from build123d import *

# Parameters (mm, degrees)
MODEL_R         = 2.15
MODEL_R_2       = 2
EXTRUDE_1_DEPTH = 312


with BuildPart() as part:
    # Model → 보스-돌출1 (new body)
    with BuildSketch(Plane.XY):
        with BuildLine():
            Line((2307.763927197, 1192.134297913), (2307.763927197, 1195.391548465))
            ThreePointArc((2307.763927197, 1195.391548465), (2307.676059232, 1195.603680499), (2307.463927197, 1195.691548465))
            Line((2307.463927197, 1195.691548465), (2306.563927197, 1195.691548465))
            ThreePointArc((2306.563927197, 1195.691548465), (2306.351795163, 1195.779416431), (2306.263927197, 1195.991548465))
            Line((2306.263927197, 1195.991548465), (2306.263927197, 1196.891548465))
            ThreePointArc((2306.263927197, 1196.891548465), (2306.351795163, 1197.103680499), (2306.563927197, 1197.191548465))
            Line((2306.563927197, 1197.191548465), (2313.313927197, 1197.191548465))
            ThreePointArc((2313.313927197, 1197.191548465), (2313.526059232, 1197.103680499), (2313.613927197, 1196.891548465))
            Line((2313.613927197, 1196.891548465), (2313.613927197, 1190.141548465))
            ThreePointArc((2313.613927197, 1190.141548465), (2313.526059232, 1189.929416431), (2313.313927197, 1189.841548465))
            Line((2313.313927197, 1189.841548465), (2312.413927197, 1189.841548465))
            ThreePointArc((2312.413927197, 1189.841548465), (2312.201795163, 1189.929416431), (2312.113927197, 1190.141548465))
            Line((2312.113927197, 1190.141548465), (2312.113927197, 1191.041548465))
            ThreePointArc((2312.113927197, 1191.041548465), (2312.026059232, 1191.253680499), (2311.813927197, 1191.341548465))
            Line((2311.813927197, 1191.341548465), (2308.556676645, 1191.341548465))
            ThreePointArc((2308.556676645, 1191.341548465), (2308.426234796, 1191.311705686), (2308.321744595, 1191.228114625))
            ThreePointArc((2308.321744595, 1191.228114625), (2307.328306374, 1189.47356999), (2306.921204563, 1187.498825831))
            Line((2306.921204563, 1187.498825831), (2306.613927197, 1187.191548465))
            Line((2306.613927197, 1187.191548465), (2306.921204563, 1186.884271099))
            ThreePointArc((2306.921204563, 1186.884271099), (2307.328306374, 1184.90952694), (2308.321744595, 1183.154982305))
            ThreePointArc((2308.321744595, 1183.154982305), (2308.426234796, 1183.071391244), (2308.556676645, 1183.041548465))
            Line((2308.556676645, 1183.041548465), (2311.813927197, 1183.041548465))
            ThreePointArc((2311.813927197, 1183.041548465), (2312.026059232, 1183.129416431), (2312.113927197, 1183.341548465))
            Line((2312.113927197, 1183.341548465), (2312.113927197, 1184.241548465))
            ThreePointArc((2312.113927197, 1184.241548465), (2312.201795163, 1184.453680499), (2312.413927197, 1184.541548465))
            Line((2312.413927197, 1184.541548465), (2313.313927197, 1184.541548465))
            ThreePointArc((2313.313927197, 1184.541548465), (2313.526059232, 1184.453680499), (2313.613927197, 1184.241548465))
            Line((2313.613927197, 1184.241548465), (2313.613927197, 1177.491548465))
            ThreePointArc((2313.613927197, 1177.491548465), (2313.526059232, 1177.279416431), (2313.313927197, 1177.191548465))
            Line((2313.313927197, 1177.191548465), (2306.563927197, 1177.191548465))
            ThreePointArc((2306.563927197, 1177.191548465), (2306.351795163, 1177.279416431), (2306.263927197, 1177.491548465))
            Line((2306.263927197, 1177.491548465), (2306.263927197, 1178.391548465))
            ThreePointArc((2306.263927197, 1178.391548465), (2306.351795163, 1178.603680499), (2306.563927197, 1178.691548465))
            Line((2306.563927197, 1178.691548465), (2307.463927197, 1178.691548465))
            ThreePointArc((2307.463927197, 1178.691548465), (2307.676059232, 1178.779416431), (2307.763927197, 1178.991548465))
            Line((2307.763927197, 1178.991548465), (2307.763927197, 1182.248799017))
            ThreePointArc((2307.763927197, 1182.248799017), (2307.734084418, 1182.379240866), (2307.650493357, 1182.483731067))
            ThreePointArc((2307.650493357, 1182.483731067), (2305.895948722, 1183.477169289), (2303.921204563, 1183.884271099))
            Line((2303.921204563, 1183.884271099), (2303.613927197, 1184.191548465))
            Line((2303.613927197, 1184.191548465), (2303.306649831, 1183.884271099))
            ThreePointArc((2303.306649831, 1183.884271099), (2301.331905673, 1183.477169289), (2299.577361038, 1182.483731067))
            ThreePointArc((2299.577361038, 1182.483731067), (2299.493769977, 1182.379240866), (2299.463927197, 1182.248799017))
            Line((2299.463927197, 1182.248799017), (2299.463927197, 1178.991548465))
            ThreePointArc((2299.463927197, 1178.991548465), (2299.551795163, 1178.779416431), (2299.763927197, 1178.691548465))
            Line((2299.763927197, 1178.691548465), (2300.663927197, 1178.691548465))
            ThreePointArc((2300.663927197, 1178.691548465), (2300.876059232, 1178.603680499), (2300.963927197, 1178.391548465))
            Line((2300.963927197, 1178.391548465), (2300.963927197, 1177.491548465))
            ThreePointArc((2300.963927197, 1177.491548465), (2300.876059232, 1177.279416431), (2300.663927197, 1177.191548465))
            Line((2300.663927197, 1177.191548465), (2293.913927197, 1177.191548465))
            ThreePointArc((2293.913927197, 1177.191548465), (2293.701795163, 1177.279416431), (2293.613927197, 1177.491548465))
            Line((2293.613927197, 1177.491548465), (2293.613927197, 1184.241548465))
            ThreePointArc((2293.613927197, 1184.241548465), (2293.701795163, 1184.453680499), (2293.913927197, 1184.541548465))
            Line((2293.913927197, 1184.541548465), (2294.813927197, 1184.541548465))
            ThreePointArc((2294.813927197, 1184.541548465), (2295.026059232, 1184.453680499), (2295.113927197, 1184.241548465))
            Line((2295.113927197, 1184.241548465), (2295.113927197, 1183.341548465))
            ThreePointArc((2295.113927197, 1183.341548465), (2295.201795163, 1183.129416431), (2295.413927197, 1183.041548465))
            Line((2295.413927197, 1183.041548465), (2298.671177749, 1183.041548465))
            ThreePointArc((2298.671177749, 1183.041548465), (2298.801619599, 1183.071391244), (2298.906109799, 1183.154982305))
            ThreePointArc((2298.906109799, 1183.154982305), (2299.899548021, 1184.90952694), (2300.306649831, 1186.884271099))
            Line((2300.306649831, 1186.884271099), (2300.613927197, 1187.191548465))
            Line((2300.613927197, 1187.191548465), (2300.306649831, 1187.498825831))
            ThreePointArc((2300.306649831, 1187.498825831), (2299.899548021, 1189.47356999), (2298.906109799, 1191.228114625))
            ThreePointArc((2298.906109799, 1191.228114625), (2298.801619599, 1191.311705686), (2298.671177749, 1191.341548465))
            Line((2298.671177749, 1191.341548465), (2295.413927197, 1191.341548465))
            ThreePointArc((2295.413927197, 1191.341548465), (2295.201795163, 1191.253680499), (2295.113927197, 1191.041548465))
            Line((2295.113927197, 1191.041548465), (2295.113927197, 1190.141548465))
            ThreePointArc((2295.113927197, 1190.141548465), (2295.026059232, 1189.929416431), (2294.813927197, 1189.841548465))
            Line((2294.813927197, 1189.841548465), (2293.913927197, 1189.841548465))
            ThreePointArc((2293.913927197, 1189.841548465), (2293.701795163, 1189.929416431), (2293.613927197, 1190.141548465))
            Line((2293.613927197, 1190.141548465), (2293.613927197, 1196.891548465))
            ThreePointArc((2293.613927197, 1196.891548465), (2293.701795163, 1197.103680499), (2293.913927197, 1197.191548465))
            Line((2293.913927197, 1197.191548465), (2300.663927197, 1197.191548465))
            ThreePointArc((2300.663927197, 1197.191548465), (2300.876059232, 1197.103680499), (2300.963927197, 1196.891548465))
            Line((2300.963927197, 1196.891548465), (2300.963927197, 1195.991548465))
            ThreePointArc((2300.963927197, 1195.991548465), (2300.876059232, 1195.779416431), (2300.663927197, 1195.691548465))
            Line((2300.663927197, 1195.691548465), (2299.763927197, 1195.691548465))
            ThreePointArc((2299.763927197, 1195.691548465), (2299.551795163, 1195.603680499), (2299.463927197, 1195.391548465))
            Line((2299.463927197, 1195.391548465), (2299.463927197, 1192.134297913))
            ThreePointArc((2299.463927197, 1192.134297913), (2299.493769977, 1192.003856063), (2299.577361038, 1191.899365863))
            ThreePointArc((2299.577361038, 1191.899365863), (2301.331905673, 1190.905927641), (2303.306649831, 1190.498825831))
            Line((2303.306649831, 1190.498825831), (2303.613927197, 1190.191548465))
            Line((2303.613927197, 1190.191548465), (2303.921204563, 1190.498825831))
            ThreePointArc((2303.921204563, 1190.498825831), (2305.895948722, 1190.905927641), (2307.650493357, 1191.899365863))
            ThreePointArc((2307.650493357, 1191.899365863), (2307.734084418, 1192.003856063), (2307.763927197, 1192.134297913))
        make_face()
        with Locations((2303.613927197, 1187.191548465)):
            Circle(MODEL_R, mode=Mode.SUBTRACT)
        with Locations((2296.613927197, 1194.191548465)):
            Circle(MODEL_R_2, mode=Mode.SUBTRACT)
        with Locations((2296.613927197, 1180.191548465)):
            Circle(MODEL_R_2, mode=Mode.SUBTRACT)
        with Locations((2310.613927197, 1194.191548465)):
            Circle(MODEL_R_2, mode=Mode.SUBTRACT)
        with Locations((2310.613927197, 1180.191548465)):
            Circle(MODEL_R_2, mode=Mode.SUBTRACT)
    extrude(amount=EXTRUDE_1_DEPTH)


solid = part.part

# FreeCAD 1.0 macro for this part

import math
import FreeCAD as App
import Part
import Sketcher
from FreeCAD import Vector
Q = App.Units.Quantity

doc = App.newDocument("Part")
body = doc.addObject("PartDesign::Body", "Body")

# Sketch on XY plane
sketch1 = body.newObject("Sketcher::SketchObject", "Sketch")
sketch1.AttachmentSupport = (doc.getObject("XY_Plane"), [""])
sketch1.MapMode = "FlatFace"
sketch1.addGeometry(Part.LineSegment(Vector(2307.763927, 1195.391548, 0), Vector(2307.763927, 1192.134298, 0)), False)
sketch1.addGeometry(Part.ArcOfCircle(Part.Circle(Vector(2307.463927, 1192.134298, 0), Vector(0, 0, 1), 0.3), math.radians(-51.545921), math.radians(0)), False)
sketch1.addGeometry(Part.ArcOfCircle(Part.Circle(Vector(2303.613927, 1196.982382, 0), Vector(0, 0, 1), 6.490833), math.radians(-87.286592), math.radians(-51.545921)), False)
sketch1.addGeometry(Part.LineSegment(Vector(2303.921205, 1190.498826, 0), Vector(2303.613927, 1190.191548, 0)), False)
sketch1.addGeometry(Part.LineSegment(Vector(2303.613927, 1190.191548, 0), Vector(2303.30665, 1190.498826, 0)), False)
sketch1.addGeometry(Part.ArcOfCircle(Part.Circle(Vector(2303.613927, 1196.982382, 0), Vector(0, 0, 1), 6.490833), math.radians(-128.454079), math.radians(-92.713408)), False)
sketch1.addGeometry(Part.ArcOfCircle(Part.Circle(Vector(2299.763927, 1192.134298, 0), Vector(0, 0, 1), 0.3), math.radians(-180), math.radians(-128.454079)), False)
sketch1.addGeometry(Part.LineSegment(Vector(2299.463927, 1192.134298, 0), Vector(2299.463927, 1195.391548, 0)), False)
sketch1.addGeometry(Part.ArcOfCircle(Part.Circle(Vector(2299.763927, 1195.391548, 0), Vector(0, 0, 1), 0.3), math.radians(90), math.radians(180)), False)
sketch1.addGeometry(Part.LineSegment(Vector(2299.763927, 1195.691548, 0), Vector(2300.663927, 1195.691548, 0)), False)
sketch1.addGeometry(Part.ArcOfCircle(Part.Circle(Vector(2300.663927, 1195.991548, 0), Vector(0, 0, 1), 0.3), math.radians(-90), math.radians(0)), False)
sketch1.addGeometry(Part.LineSegment(Vector(2300.963927, 1195.991548, 0), Vector(2300.963927, 1196.891548, 0)), False)
sketch1.addGeometry(Part.ArcOfCircle(Part.Circle(Vector(2300.663927, 1196.891548, 0), Vector(0, 0, 1), 0.3), math.radians(0), math.radians(90)), False)
sketch1.addGeometry(Part.LineSegment(Vector(2300.663927, 1197.191548, 0), Vector(2293.913927, 1197.191548, 0)), False)
sketch1.addGeometry(Part.ArcOfCircle(Part.Circle(Vector(2293.913927, 1196.891548, 0), Vector(0, 0, 1), 0.3), math.radians(90), math.radians(180)), False)
sketch1.addGeometry(Part.LineSegment(Vector(2293.613927, 1196.891548, 0), Vector(2293.613927, 1190.141548, 0)), False)
sketch1.addGeometry(Part.ArcOfCircle(Part.Circle(Vector(2293.913927, 1190.141548, 0), Vector(0, 0, 1), 0.3), math.radians(-180), math.radians(-90)), False)
sketch1.addGeometry(Part.LineSegment(Vector(2293.913927, 1189.841548, 0), Vector(2294.813927, 1189.841548, 0)), False)
sketch1.addGeometry(Part.ArcOfCircle(Part.Circle(Vector(2294.813927, 1190.141548, 0), Vector(0, 0, 1), 0.3), math.radians(-90), math.radians(0)), False)
sketch1.addGeometry(Part.LineSegment(Vector(2295.113927, 1190.141548, 0), Vector(2295.113927, 1191.041548, 0)), False)
sketch1.addGeometry(Part.ArcOfCircle(Part.Circle(Vector(2295.413927, 1191.041548, 0), Vector(0, 0, 1), 0.3), math.radians(90), math.radians(180)), False)
sketch1.addGeometry(Part.LineSegment(Vector(2295.413927, 1191.341548, 0), Vector(2298.671178, 1191.341548, 0)), False)
sketch1.addGeometry(Part.ArcOfCircle(Part.Circle(Vector(2298.671178, 1191.041548, 0), Vector(0, 0, 1), 0.3), math.radians(38.454079), math.radians(90)), False)
sketch1.addGeometry(Part.ArcOfCircle(Part.Circle(Vector(2293.823094, 1187.191548, 0), Vector(0, 0, 1), 6.490833), math.radians(2.713408), math.radians(38.454079)), False)
sketch1.addGeometry(Part.LineSegment(Vector(2300.30665, 1187.498826, 0), Vector(2300.613927, 1187.191548, 0)), False)
sketch1.addGeometry(Part.LineSegment(Vector(2300.613927, 1187.191548, 0), Vector(2300.30665, 1186.884271, 0)), False)
sketch1.addGeometry(Part.ArcOfCircle(Part.Circle(Vector(2293.823094, 1187.191548, 0), Vector(0, 0, 1), 6.490833), math.radians(-38.454079), math.radians(-2.713408)), False)
sketch1.addGeometry(Part.ArcOfCircle(Part.Circle(Vector(2298.671178, 1183.341548, 0), Vector(0, 0, 1), 0.3), math.radians(-90), math.radians(-38.454079)), False)
sketch1.addGeometry(Part.LineSegment(Vector(2298.671178, 1183.041548, 0), Vector(2295.413927, 1183.041548, 0)), False)
sketch1.addGeometry(Part.ArcOfCircle(Part.Circle(Vector(2295.413927, 1183.341548, 0), Vector(0, 0, 1), 0.3), math.radians(-180), math.radians(-90)), False)
sketch1.addGeometry(Part.LineSegment(Vector(2295.113927, 1183.341548, 0), Vector(2295.113927, 1184.241548, 0)), False)
sketch1.addGeometry(Part.ArcOfCircle(Part.Circle(Vector(2294.813927, 1184.241548, 0), Vector(0, 0, 1), 0.3), math.radians(0), math.radians(90)), False)
sketch1.addGeometry(Part.LineSegment(Vector(2294.813927, 1184.541548, 0), Vector(2293.913927, 1184.541548, 0)), False)
sketch1.addGeometry(Part.ArcOfCircle(Part.Circle(Vector(2293.913927, 1184.241548, 0), Vector(0, 0, 1), 0.3), math.radians(90), math.radians(180)), False)
sketch1.addGeometry(Part.LineSegment(Vector(2293.613927, 1184.241548, 0), Vector(2293.613927, 1177.491548, 0)), False)
sketch1.addGeometry(Part.ArcOfCircle(Part.Circle(Vector(2293.913927, 1177.491548, 0), Vector(0, 0, 1), 0.3), math.radians(-180), math.radians(-90)), False)
sketch1.addGeometry(Part.LineSegment(Vector(2293.913927, 1177.191548, 0), Vector(2300.663927, 1177.191548, 0)), False)
sketch1.addGeometry(Part.ArcOfCircle(Part.Circle(Vector(2300.663927, 1177.491548, 0), Vector(0, 0, 1), 0.3), math.radians(-90), math.radians(0)), False)
sketch1.addGeometry(Part.LineSegment(Vector(2300.963927, 1177.491548, 0), Vector(2300.963927, 1178.391548, 0)), False)
sketch1.addGeometry(Part.ArcOfCircle(Part.Circle(Vector(2300.663927, 1178.391548, 0), Vector(0, 0, 1), 0.3), math.radians(0), math.radians(90)), False)
sketch1.addGeometry(Part.LineSegment(Vector(2300.663927, 1178.691548, 0), Vector(2299.763927, 1178.691548, 0)), False)
sketch1.addGeometry(Part.ArcOfCircle(Part.Circle(Vector(2299.763927, 1178.991548, 0), Vector(0, 0, 1), 0.3), math.radians(-180), math.radians(-90)), False)
sketch1.addGeometry(Part.LineSegment(Vector(2299.463927, 1178.991548, 0), Vector(2299.463927, 1182.248799, 0)), False)
sketch1.addGeometry(Part.ArcOfCircle(Part.Circle(Vector(2299.763927, 1182.248799, 0), Vector(0, 0, 1), 0.3), math.radians(128.45408), math.radians(179.999999)), False)
sketch1.addGeometry(Part.ArcOfCircle(Part.Circle(Vector(2303.613927, 1177.400715, 0), Vector(0, 0, 1), 6.490833), math.radians(92.713408), math.radians(128.454079)), False)
sketch1.addGeometry(Part.LineSegment(Vector(2303.30665, 1183.884271, 0), Vector(2303.613927, 1184.191548, 0)), False)
sketch1.addGeometry(Part.LineSegment(Vector(2303.613927, 1184.191548, 0), Vector(2303.921205, 1183.884271, 0)), False)
sketch1.addGeometry(Part.ArcOfCircle(Part.Circle(Vector(2303.613927, 1177.400715, 0), Vector(0, 0, 1), 6.490833), math.radians(51.545921), math.radians(87.286592)), False)
sketch1.addGeometry(Part.ArcOfCircle(Part.Circle(Vector(2307.463927, 1182.248799, 0), Vector(0, 0, 1), 0.3), math.radians(0), math.radians(51.545921)), False)
sketch1.addGeometry(Part.LineSegment(Vector(2307.763927, 1182.248799, 0), Vector(2307.763927, 1178.991548, 0)), False)
sketch1.addGeometry(Part.ArcOfCircle(Part.Circle(Vector(2307.463927, 1178.991548, 0), Vector(0, 0, 1), 0.3), math.radians(-90), math.radians(0)), False)
sketch1.addGeometry(Part.LineSegment(Vector(2307.463927, 1178.691548, 0), Vector(2306.563927, 1178.691548, 0)), False)
sketch1.addGeometry(Part.ArcOfCircle(Part.Circle(Vector(2306.563927, 1178.391548, 0), Vector(0, 0, 1), 0.3), math.radians(90), math.radians(180)), False)
sketch1.addGeometry(Part.LineSegment(Vector(2306.263927, 1178.391548, 0), Vector(2306.263927, 1177.491548, 0)), False)
sketch1.addGeometry(Part.ArcOfCircle(Part.Circle(Vector(2306.563927, 1177.491548, 0), Vector(0, 0, 1), 0.3), math.radians(-180), math.radians(-90)), False)
sketch1.addGeometry(Part.LineSegment(Vector(2306.563927, 1177.191548, 0), Vector(2313.313927, 1177.191548, 0)), False)
sketch1.addGeometry(Part.ArcOfCircle(Part.Circle(Vector(2313.313927, 1177.491548, 0), Vector(0, 0, 1), 0.3), math.radians(-90), math.radians(0)), False)
sketch1.addGeometry(Part.LineSegment(Vector(2313.613927, 1177.491548, 0), Vector(2313.613927, 1184.241548, 0)), False)
sketch1.addGeometry(Part.ArcOfCircle(Part.Circle(Vector(2313.313927, 1184.241548, 0), Vector(0, 0, 1), 0.3), math.radians(0), math.radians(90)), False)
sketch1.addGeometry(Part.LineSegment(Vector(2313.313927, 1184.541548, 0), Vector(2312.413927, 1184.541548, 0)), False)
sketch1.addGeometry(Part.ArcOfCircle(Part.Circle(Vector(2312.413927, 1184.241548, 0), Vector(0, 0, 1), 0.3), math.radians(90), math.radians(180)), False)
sketch1.addGeometry(Part.LineSegment(Vector(2312.113927, 1184.241548, 0), Vector(2312.113927, 1183.341548, 0)), False)
sketch1.addGeometry(Part.ArcOfCircle(Part.Circle(Vector(2311.813927, 1183.341548, 0), Vector(0, 0, 1), 0.3), math.radians(-90), math.radians(0)), False)
sketch1.addGeometry(Part.LineSegment(Vector(2311.813927, 1183.041548, 0), Vector(2308.556677, 1183.041548, 0)), False)
sketch1.addGeometry(Part.ArcOfCircle(Part.Circle(Vector(2308.556677, 1183.341548, 0), Vector(0, 0, 1), 0.3), math.radians(-141.545921), math.radians(-90)), False)
sketch1.addGeometry(Part.ArcOfCircle(Part.Circle(Vector(2313.404761, 1187.191548, 0), Vector(0, 0, 1), 6.490833), math.radians(-177.286592), math.radians(-141.545921)), False)
sketch1.addGeometry(Part.LineSegment(Vector(2306.921205, 1186.884271, 0), Vector(2306.613927, 1187.191548, 0)), False)
sketch1.addGeometry(Part.LineSegment(Vector(2306.613927, 1187.191548, 0), Vector(2306.921205, 1187.498826, 0)), False)
sketch1.addGeometry(Part.ArcOfCircle(Part.Circle(Vector(2313.404761, 1187.191548, 0), Vector(0, 0, 1), 6.490833), math.radians(141.545921), math.radians(177.286592)), False)
sketch1.addGeometry(Part.ArcOfCircle(Part.Circle(Vector(2308.556677, 1191.041548, 0), Vector(0, 0, 1), 0.3), math.radians(90), math.radians(141.545921)), False)
sketch1.addGeometry(Part.LineSegment(Vector(2308.556677, 1191.341548, 0), Vector(2311.813927, 1191.341548, 0)), False)
sketch1.addGeometry(Part.ArcOfCircle(Part.Circle(Vector(2311.813927, 1191.041548, 0), Vector(0, 0, 1), 0.3), math.radians(0), math.radians(90)), False)
sketch1.addGeometry(Part.LineSegment(Vector(2312.113927, 1191.041548, 0), Vector(2312.113927, 1190.141548, 0)), False)
sketch1.addGeometry(Part.ArcOfCircle(Part.Circle(Vector(2312.413927, 1190.141548, 0), Vector(0, 0, 1), 0.3), math.radians(-180), math.radians(-90)), False)
sketch1.addGeometry(Part.LineSegment(Vector(2312.413927, 1189.841548, 0), Vector(2313.313927, 1189.841548, 0)), False)
sketch1.addGeometry(Part.ArcOfCircle(Part.Circle(Vector(2313.313927, 1190.141548, 0), Vector(0, 0, 1), 0.3), math.radians(-90), math.radians(0)), False)
sketch1.addGeometry(Part.LineSegment(Vector(2313.613927, 1190.141548, 0), Vector(2313.613927, 1196.891548, 0)), False)
sketch1.addGeometry(Part.ArcOfCircle(Part.Circle(Vector(2313.313927, 1196.891548, 0), Vector(0, 0, 1), 0.3), math.radians(0), math.radians(90)), False)
sketch1.addGeometry(Part.LineSegment(Vector(2313.313927, 1197.191548, 0), Vector(2306.563927, 1197.191548, 0)), False)
sketch1.addGeometry(Part.ArcOfCircle(Part.Circle(Vector(2306.563927, 1196.891548, 0), Vector(0, 0, 1), 0.3), math.radians(90), math.radians(180)), False)
sketch1.addGeometry(Part.LineSegment(Vector(2306.263927, 1196.891548, 0), Vector(2306.263927, 1195.991548, 0)), False)
sketch1.addGeometry(Part.ArcOfCircle(Part.Circle(Vector(2306.563927, 1195.991548, 0), Vector(0, 0, 1), 0.3), math.radians(-180), math.radians(-90)), False)
sketch1.addGeometry(Part.LineSegment(Vector(2306.563927, 1195.691548, 0), Vector(2307.463927, 1195.691548, 0)), False)
sketch1.addGeometry(Part.ArcOfCircle(Part.Circle(Vector(2307.463927, 1195.391548, 0), Vector(0, 0, 1), 0.3), math.radians(0), math.radians(90)), False)
sketch1.addGeometry(Part.Circle(Vector(2310.613927, 1180.191548, 0), Vector(0, 0, 1), 2), False)
sketch1.addGeometry(Part.Circle(Vector(2296.613927, 1180.191548, 0), Vector(0, 0, 1), 2), False)
sketch1.addGeometry(Part.Circle(Vector(2310.613927, 1194.191548, 0), Vector(0, 0, 1), 2), False)
sketch1.addGeometry(Part.Circle(Vector(2303.613927, 1187.191548, 0), Vector(0, 0, 1), 2.15), False)
sketch1.addGeometry(Part.Circle(Vector(2296.613927, 1194.191548, 0), Vector(0, 0, 1), 2), False)
sketch1.addConstraint(Sketcher.Constraint("Tangent", 0, 2, 1, 2))
sketch1.addConstraint(Sketcher.Constraint("Tangent", 1, 1, 2, 2))
sketch1.addConstraint(Sketcher.Constraint("Coincident", 2, 1, 3, 1))
sketch1.addConstraint(Sketcher.Constraint("Coincident", 3, 2, 4, 1))
sketch1.addConstraint(Sketcher.Constraint("Coincident", 4, 2, 5, 2))
sketch1.addConstraint(Sketcher.Constraint("Tangent", 5, 1, 6, 2))
sketch1.addConstraint(Sketcher.Constraint("Tangent", 6, 1, 7, 1))
sketch1.addConstraint(Sketcher.Constraint("Tangent", 7, 2, 8, 2))
sketch1.addConstraint(Sketcher.Constraint("Tangent", 8, 1, 9, 1))
sketch1.addConstraint(Sketcher.Constraint("Tangent", 9, 2, 10, 1))
sketch1.addConstraint(Sketcher.Constraint("Tangent", 10, 2, 11, 1))
sketch1.addConstraint(Sketcher.Constraint("Tangent", 11, 2, 12, 1))
sketch1.addConstraint(Sketcher.Constraint("Tangent", 12, 2, 13, 1))
sketch1.addConstraint(Sketcher.Constraint("Tangent", 13, 2, 14, 1))
sketch1.addConstraint(Sketcher.Constraint("Tangent", 14, 2, 15, 1))
sketch1.addConstraint(Sketcher.Constraint("Tangent", 15, 2, 16, 1))
sketch1.addConstraint(Sketcher.Constraint("Tangent", 16, 2, 17, 1))
sketch1.addConstraint(Sketcher.Constraint("Tangent", 17, 2, 18, 1))
sketch1.addConstraint(Sketcher.Constraint("Tangent", 18, 2, 19, 1))
sketch1.addConstraint(Sketcher.Constraint("Tangent", 19, 2, 20, 2))
sketch1.addConstraint(Sketcher.Constraint("Tangent", 20, 1, 21, 1))
sketch1.addConstraint(Sketcher.Constraint("Tangent", 21, 2, 22, 2))
sketch1.addConstraint(Sketcher.Constraint("Tangent", 22, 1, 23, 2))
sketch1.addConstraint(Sketcher.Constraint("Coincident", 23, 1, 24, 1))
sketch1.addConstraint(Sketcher.Constraint("Coincident", 24, 2, 25, 1))
sketch1.addConstraint(Sketcher.Constraint("Coincident", 25, 2, 26, 2))
sketch1.addConstraint(Sketcher.Constraint("Tangent", 26, 1, 27, 2))
sketch1.addConstraint(Sketcher.Constraint("Tangent", 27, 1, 28, 1))
sketch1.addConstraint(Sketcher.Constraint("Tangent", 28, 2, 29, 2))
sketch1.addConstraint(Sketcher.Constraint("Tangent", 29, 1, 30, 1))
sketch1.addConstraint(Sketcher.Constraint("Tangent", 30, 2, 31, 1))
sketch1.addConstraint(Sketcher.Constraint("Tangent", 31, 2, 32, 1))
sketch1.addConstraint(Sketcher.Constraint("Tangent", 32, 2, 33, 1))
sketch1.addConstraint(Sketcher.Constraint("Tangent", 33, 2, 34, 1))
sketch1.addConstraint(Sketcher.Constraint("Tangent", 34, 2, 35, 1))
sketch1.addConstraint(Sketcher.Constraint("Tangent", 35, 2, 36, 1))
sketch1.addConstraint(Sketcher.Constraint("Tangent", 36, 2, 37, 1))
sketch1.addConstraint(Sketcher.Constraint("Tangent", 37, 2, 38, 1))
sketch1.addConstraint(Sketcher.Constraint("Tangent", 38, 2, 39, 1))
sketch1.addConstraint(Sketcher.Constraint("Tangent", 39, 2, 40, 1))
sketch1.addConstraint(Sketcher.Constraint("Tangent", 40, 2, 41, 2))
sketch1.addConstraint(Sketcher.Constraint("Tangent", 41, 1, 42, 1))
sketch1.addConstraint(Sketcher.Constraint("Tangent", 42, 2, 43, 2))
sketch1.addConstraint(Sketcher.Constraint("Tangent", 43, 1, 44, 2))
sketch1.addConstraint(Sketcher.Constraint("Coincident", 44, 1, 45, 1))
sketch1.addConstraint(Sketcher.Constraint("Coincident", 45, 2, 46, 1))
sketch1.addConstraint(Sketcher.Constraint("Coincident", 46, 2, 47, 2))
sketch1.addConstraint(Sketcher.Constraint("Tangent", 47, 1, 48, 2))
sketch1.addConstraint(Sketcher.Constraint("Tangent", 48, 1, 49, 1))
sketch1.addConstraint(Sketcher.Constraint("Tangent", 49, 2, 50, 2))
sketch1.addConstraint(Sketcher.Constraint("Tangent", 50, 1, 51, 1))
sketch1.addConstraint(Sketcher.Constraint("Tangent", 51, 2, 52, 1))
sketch1.addConstraint(Sketcher.Constraint("Tangent", 52, 2, 53, 1))
sketch1.addConstraint(Sketcher.Constraint("Tangent", 53, 2, 54, 1))
sketch1.addConstraint(Sketcher.Constraint("Tangent", 54, 2, 55, 1))
sketch1.addConstraint(Sketcher.Constraint("Tangent", 55, 2, 56, 1))
sketch1.addConstraint(Sketcher.Constraint("Tangent", 56, 2, 57, 1))
sketch1.addConstraint(Sketcher.Constraint("Tangent", 57, 2, 58, 1))
sketch1.addConstraint(Sketcher.Constraint("Tangent", 58, 2, 59, 1))
sketch1.addConstraint(Sketcher.Constraint("Tangent", 59, 2, 60, 1))
sketch1.addConstraint(Sketcher.Constraint("Tangent", 60, 2, 61, 1))
sketch1.addConstraint(Sketcher.Constraint("Tangent", 61, 2, 62, 2))
sketch1.addConstraint(Sketcher.Constraint("Tangent", 62, 1, 63, 1))
sketch1.addConstraint(Sketcher.Constraint("Tangent", 63, 2, 64, 2))
sketch1.addConstraint(Sketcher.Constraint("Tangent", 64, 1, 65, 2))
sketch1.addConstraint(Sketcher.Constraint("Coincident", 65, 1, 66, 1))
sketch1.addConstraint(Sketcher.Constraint("Coincident", 66, 2, 67, 1))
sketch1.addConstraint(Sketcher.Constraint("Coincident", 67, 2, 68, 2))
sketch1.addConstraint(Sketcher.Constraint("Tangent", 68, 1, 69, 2))
sketch1.addConstraint(Sketcher.Constraint("Tangent", 69, 1, 70, 1))
sketch1.addConstraint(Sketcher.Constraint("Tangent", 70, 2, 71, 2))
sketch1.addConstraint(Sketcher.Constraint("Tangent", 71, 1, 72, 1))
sketch1.addConstraint(Sketcher.Constraint("Tangent", 72, 2, 73, 1))
sketch1.addConstraint(Sketcher.Constraint("Tangent", 73, 2, 74, 1))
sketch1.addConstraint(Sketcher.Constraint("Tangent", 74, 2, 75, 1))
sketch1.addConstraint(Sketcher.Constraint("Tangent", 75, 2, 76, 1))
sketch1.addConstraint(Sketcher.Constraint("Tangent", 76, 2, 77, 1))
sketch1.addConstraint(Sketcher.Constraint("Tangent", 77, 2, 78, 1))
sketch1.addConstraint(Sketcher.Constraint("Tangent", 78, 2, 79, 1))
sketch1.addConstraint(Sketcher.Constraint("Tangent", 79, 2, 80, 1))
sketch1.addConstraint(Sketcher.Constraint("Tangent", 80, 2, 81, 1))
sketch1.addConstraint(Sketcher.Constraint("Tangent", 81, 2, 82, 1))
sketch1.addConstraint(Sketcher.Constraint("Tangent", 82, 2, 83, 2))
sketch1.addConstraint(Sketcher.Constraint("Tangent", 83, 1, 0, 1))
sketch1.addConstraint(Sketcher.Constraint("Vertical", 0))
sketch1.addConstraint(Sketcher.Constraint("Vertical", 7))
sketch1.addConstraint(Sketcher.Constraint("Horizontal", 9))
sketch1.addConstraint(Sketcher.Constraint("Vertical", 11))
sketch1.addConstraint(Sketcher.Constraint("Horizontal", 13))
sketch1.addConstraint(Sketcher.Constraint("Vertical", 15))
sketch1.addConstraint(Sketcher.Constraint("Horizontal", 17))
sketch1.addConstraint(Sketcher.Constraint("Vertical", 19))
sketch1.addConstraint(Sketcher.Constraint("Horizontal", 21))
sketch1.addConstraint(Sketcher.Constraint("Horizontal", 28))
sketch1.addConstraint(Sketcher.Constraint("Vertical", 30))
sketch1.addConstraint(Sketcher.Constraint("Horizontal", 32))
sketch1.addConstraint(Sketcher.Constraint("Vertical", 34))
sketch1.addConstraint(Sketcher.Constraint("Horizontal", 36))
sketch1.addConstraint(Sketcher.Constraint("Vertical", 38))
sketch1.addConstraint(Sketcher.Constraint("Horizontal", 40))
sketch1.addConstraint(Sketcher.Constraint("Vertical", 42))
sketch1.addConstraint(Sketcher.Constraint("Vertical", 49))
sketch1.addConstraint(Sketcher.Constraint("Horizontal", 51))
sketch1.addConstraint(Sketcher.Constraint("Vertical", 53))
sketch1.addConstraint(Sketcher.Constraint("Horizontal", 55))
sketch1.addConstraint(Sketcher.Constraint("Vertical", 57))
sketch1.addConstraint(Sketcher.Constraint("Horizontal", 59))
sketch1.addConstraint(Sketcher.Constraint("Vertical", 61))
sketch1.addConstraint(Sketcher.Constraint("Horizontal", 63))
sketch1.addConstraint(Sketcher.Constraint("Horizontal", 70))
sketch1.addConstraint(Sketcher.Constraint("Vertical", 72))
sketch1.addConstraint(Sketcher.Constraint("Horizontal", 74))
sketch1.addConstraint(Sketcher.Constraint("Vertical", 76))
sketch1.addConstraint(Sketcher.Constraint("Horizontal", 78))
sketch1.addConstraint(Sketcher.Constraint("Vertical", 80))
sketch1.addConstraint(Sketcher.Constraint("Horizontal", 82))
sketch1.addConstraint(Sketcher.Constraint("Coincident", 5, 3, 2, 3))
sketch1.addConstraint(Sketcher.Constraint("Coincident", 26, 3, 23, 3))
sketch1.addConstraint(Sketcher.Constraint("Coincident", 47, 3, 44, 3))
sketch1.addConstraint(Sketcher.Constraint("Coincident", 68, 3, 65, 3))
sketch1.addConstraint(Sketcher.Constraint("Equal", 2, 5))
sketch1.addConstraint(Sketcher.Constraint("Equal", 1, 6))
sketch1.addConstraint(Sketcher.Constraint("Equal", 6, 8))
sketch1.addConstraint(Sketcher.Constraint("Equal", 8, 10))
sketch1.addConstraint(Sketcher.Constraint("Equal", 10, 12))
sketch1.addConstraint(Sketcher.Constraint("Equal", 12, 14))
sketch1.addConstraint(Sketcher.Constraint("Equal", 14, 16))
sketch1.addConstraint(Sketcher.Constraint("Equal", 16, 18))
sketch1.addConstraint(Sketcher.Constraint("Equal", 18, 20))
sketch1.addConstraint(Sketcher.Constraint("Equal", 20, 22))
sketch1.addConstraint(Sketcher.Constraint("Equal", 5, 23))
sketch1.addConstraint(Sketcher.Constraint("Equal", 23, 26))
sketch1.addConstraint(Sketcher.Constraint("Equal", 22, 27))
sketch1.addConstraint(Sketcher.Constraint("Equal", 27, 29))
sketch1.addConstraint(Sketcher.Constraint("Equal", 29, 31))
sketch1.addConstraint(Sketcher.Constraint("Equal", 31, 33))
sketch1.addConstraint(Sketcher.Constraint("Equal", 33, 35))
sketch1.addConstraint(Sketcher.Constraint("Equal", 35, 37))
sketch1.addConstraint(Sketcher.Constraint("Equal", 37, 39))
sketch1.addConstraint(Sketcher.Constraint("Equal", 39, 41))
sketch1.addConstraint(Sketcher.Constraint("Equal", 41, 43))
sketch1.addConstraint(Sketcher.Constraint("Equal", 26, 44))
sketch1.addConstraint(Sketcher.Constraint("Equal", 44, 47))
sketch1.addConstraint(Sketcher.Constraint("Equal", 43, 48))
sketch1.addConstraint(Sketcher.Constraint("Equal", 48, 50))
sketch1.addConstraint(Sketcher.Constraint("Equal", 50, 52))
sketch1.addConstraint(Sketcher.Constraint("Equal", 52, 54))
sketch1.addConstraint(Sketcher.Constraint("Equal", 54, 56))
sketch1.addConstraint(Sketcher.Constraint("Equal", 56, 58))
sketch1.addConstraint(Sketcher.Constraint("Equal", 58, 60))
sketch1.addConstraint(Sketcher.Constraint("Equal", 60, 62))
sketch1.addConstraint(Sketcher.Constraint("Equal", 62, 64))
sketch1.addConstraint(Sketcher.Constraint("Equal", 47, 65))
sketch1.addConstraint(Sketcher.Constraint("Equal", 65, 68))
sketch1.addConstraint(Sketcher.Constraint("Equal", 64, 69))
sketch1.addConstraint(Sketcher.Constraint("Equal", 69, 71))
sketch1.addConstraint(Sketcher.Constraint("Equal", 71, 73))
sketch1.addConstraint(Sketcher.Constraint("Equal", 73, 75))
sketch1.addConstraint(Sketcher.Constraint("Equal", 75, 77))
sketch1.addConstraint(Sketcher.Constraint("Equal", 77, 79))
sketch1.addConstraint(Sketcher.Constraint("Equal", 79, 81))
sketch1.addConstraint(Sketcher.Constraint("Equal", 81, 83))
sketch1.addConstraint(Sketcher.Constraint("Equal", 84, 85))
sketch1.addConstraint(Sketcher.Constraint("Equal", 85, 86))
sketch1.addConstraint(Sketcher.Constraint("Equal", 86, 88))
sketch1.addConstraint(Sketcher.Constraint("Perpendicular", 3, 4))
sketch1.addConstraint(Sketcher.Constraint("Parallel", 4, 24))
sketch1.addConstraint(Sketcher.Constraint("Perpendicular", 24, 25))
sketch1.addConstraint(Sketcher.Constraint("Parallel", 25, 45))
sketch1.addConstraint(Sketcher.Constraint("Perpendicular", 45, 46))
sketch1.addConstraint(Sketcher.Constraint("Parallel", 46, 66))
sketch1.addConstraint(Sketcher.Constraint("Perpendicular", 66, 67))
sketch1.addConstraint(Sketcher.Constraint("Horizontal", 1, 3, 6, 3))
sketch1.addConstraint(Sketcher.Constraint("Horizontal", 43, 3, 48, 3))
sketch1.addConstraint(Sketcher.Constraint("Horizontal", 41, 3, 50, 3))
sketch1.addConstraint(Sketcher.Constraint("Horizontal", 37, 3, 54, 3))
sketch1.addConstraint(Sketcher.Constraint("Horizontal", 33, 3, 58, 3))
sketch1.addConstraint(Sketcher.Constraint("Horizontal", 29, 3, 62, 3))
sketch1.addConstraint(Sketcher.Constraint("Horizontal", 26, 3, 65, 3))
sketch1.addConstraint(Sketcher.Constraint("Horizontal", 22, 3, 69, 3))
sketch1.addConstraint(Sketcher.Constraint("Horizontal", 18, 3, 73, 3))
sketch1.addConstraint(Sketcher.Constraint("Horizontal", 14, 3, 77, 3))
sketch1.addConstraint(Sketcher.Constraint("Horizontal", 10, 3, 81, 3))
sketch1.addConstraint(Sketcher.Constraint("Horizontal", 84, 3, 85, 3))
sketch1.addConstraint(Sketcher.Constraint("Horizontal", 68, 3, 87, 3))
sketch1.addConstraint(Sketcher.Constraint("Horizontal", 86, 3, 88, 3))
sketch1.addConstraint(Sketcher.Constraint("Horizontal", 2, 1, 4, 2))
sketch1.addConstraint(Sketcher.Constraint("Horizontal", 87, 3, 24, 2))
sketch1.addConstraint(Sketcher.Constraint("Horizontal", 44, 1, 46, 2))
sketch1.addConstraint(Sketcher.Constraint("Horizontal", 25, 2, 65, 1))
sketch1.addConstraint(Sketcher.Constraint("Horizontal", 24, 2, 66, 2))
sketch1.addConstraint(Sketcher.Constraint("Horizontal", 23, 1, 67, 2))
sketch1.addConstraint(Sketcher.Constraint("Vertical", 22, 3, 27, 3))
sketch1.addConstraint(Sketcher.Constraint("Vertical", 20, 3, 29, 3))
sketch1.addConstraint(Sketcher.Constraint("Vertical", 16, 3, 33, 3))
sketch1.addConstraint(Sketcher.Constraint("Vertical", 12, 3, 37, 3))
sketch1.addConstraint(Sketcher.Constraint("Vertical", 8, 3, 41, 3))
sketch1.addConstraint(Sketcher.Constraint("Vertical", 5, 3, 44, 3))
sketch1.addConstraint(Sketcher.Constraint("Vertical", 62, 3, 71, 3))
sketch1.addConstraint(Sketcher.Constraint("Vertical", 58, 3, 75, 3))
sketch1.addConstraint(Sketcher.Constraint("Vertical", 54, 3, 79, 3))
sketch1.addConstraint(Sketcher.Constraint("Vertical", 84, 3, 86, 3))
sketch1.addConstraint(Sketcher.Constraint("Vertical", 47, 3, 87, 3))
sketch1.addConstraint(Sketcher.Constraint("Vertical", 85, 3, 88, 3))
sketch1.addConstraint(Sketcher.Constraint("Vertical", 4, 2, 44, 1))
sketch1.addConstraint(Sketcher.Constraint("Equal", 9, 17))
sketch1.addConstraint(Sketcher.Constraint("Equal", 40, 51))
sketch1.addConstraint(Sketcher.Constraint("Equal", 36, 55))
sketch1.addConstraint(Sketcher.Constraint("Equal", 51, 59))
sketch1.addConstraint(Sketcher.Constraint("Equal", 28, 63))
sketch1.addConstraint(Sketcher.Constraint("Equal", 70, 0))
sketch1.addConstraint(Sketcher.Constraint("Equal", 82, 11))
sketch1.addConstraint(Sketcher.Constraint("Equal", 78, 15))
sketch1.addConstraint(Sketcher.Constraint("Equal", 11, 19))
sketch1.addConstraint(Sketcher.Constraint("Equal", 19, 30))
sketch1.addConstraint(Sketcher.Constraint("Equal", 15, 34))
sketch1.addConstraint(Sketcher.Constraint("Equal", 30, 38))
sketch1.addConstraint(Sketcher.Constraint("Equal", 7, 42))
sketch1.addConstraint(Sketcher.Constraint("Equal", 4, 24))
sketch1.addConstraint(Sketcher.Constraint("Diameter", 84, Q("4 mm")))
sketch1.addConstraint(Sketcher.Constraint("Diameter", 87, Q("4.3 mm")))
sketch1.addConstraint(Sketcher.Constraint("Radius", 1, Q("0.3 mm")))
sketch1.addConstraint(Sketcher.Constraint("DistanceX", 9, 1, 9, 2, Q("0.9 mm")))
sketch1.addConstraint(Sketcher.Constraint("DistanceX", 13, 2, 13, 1, Q("6.75 mm")))
sketch1.addConstraint(Sketcher.Constraint("Radius", 2, Q("6.490833 mm")))
sketch1.addConstraint(Sketcher.Constraint("DistanceX", 21, 1, 21, 2, Q("3.257251 mm")))
sketch1.addConstraint(Sketcher.Constraint("DistanceY", -1, 1, 43, 3, Q("1182.248799 mm")))
sketch1.addConstraint(Sketcher.Constraint("DistanceY", -1, 1, 2, 3, Q("1196.982382 mm")))
sketch1.addConstraint(Sketcher.Constraint("DistanceY", -1, 1, 8, 3, Q("1195.391548 mm")))
sketch1.addConstraint(Sketcher.Constraint("DistanceX", -1, 1, 65, 3, Q("2313.404761 mm")))
sketch1.addConstraint(Sketcher.Constraint("DistanceY", -1, 1, 84, 3, Q("1180.191548 mm")))
sketch1.addConstraint(Sketcher.Constraint("DistanceY", -1, 1, 86, 3, Q("1194.191548 mm")))
sketch1.addConstraint(Sketcher.Constraint("DistanceY", -1, 1, 3, 2, Q("1190.191548 mm")))
sketch1.addConstraint(Sketcher.Constraint("DistanceX", -1, 1, 84, 3, Q("2310.613927 mm")))
sketch1.addConstraint(Sketcher.Constraint("DistanceX", -1, 1, 85, 3, Q("2296.613927 mm")))
pad1 = body.newObject("PartDesign::Pad", "Pad")
pad1.Profile = sketch1
pad1.Length = 312

doc.recompute()
